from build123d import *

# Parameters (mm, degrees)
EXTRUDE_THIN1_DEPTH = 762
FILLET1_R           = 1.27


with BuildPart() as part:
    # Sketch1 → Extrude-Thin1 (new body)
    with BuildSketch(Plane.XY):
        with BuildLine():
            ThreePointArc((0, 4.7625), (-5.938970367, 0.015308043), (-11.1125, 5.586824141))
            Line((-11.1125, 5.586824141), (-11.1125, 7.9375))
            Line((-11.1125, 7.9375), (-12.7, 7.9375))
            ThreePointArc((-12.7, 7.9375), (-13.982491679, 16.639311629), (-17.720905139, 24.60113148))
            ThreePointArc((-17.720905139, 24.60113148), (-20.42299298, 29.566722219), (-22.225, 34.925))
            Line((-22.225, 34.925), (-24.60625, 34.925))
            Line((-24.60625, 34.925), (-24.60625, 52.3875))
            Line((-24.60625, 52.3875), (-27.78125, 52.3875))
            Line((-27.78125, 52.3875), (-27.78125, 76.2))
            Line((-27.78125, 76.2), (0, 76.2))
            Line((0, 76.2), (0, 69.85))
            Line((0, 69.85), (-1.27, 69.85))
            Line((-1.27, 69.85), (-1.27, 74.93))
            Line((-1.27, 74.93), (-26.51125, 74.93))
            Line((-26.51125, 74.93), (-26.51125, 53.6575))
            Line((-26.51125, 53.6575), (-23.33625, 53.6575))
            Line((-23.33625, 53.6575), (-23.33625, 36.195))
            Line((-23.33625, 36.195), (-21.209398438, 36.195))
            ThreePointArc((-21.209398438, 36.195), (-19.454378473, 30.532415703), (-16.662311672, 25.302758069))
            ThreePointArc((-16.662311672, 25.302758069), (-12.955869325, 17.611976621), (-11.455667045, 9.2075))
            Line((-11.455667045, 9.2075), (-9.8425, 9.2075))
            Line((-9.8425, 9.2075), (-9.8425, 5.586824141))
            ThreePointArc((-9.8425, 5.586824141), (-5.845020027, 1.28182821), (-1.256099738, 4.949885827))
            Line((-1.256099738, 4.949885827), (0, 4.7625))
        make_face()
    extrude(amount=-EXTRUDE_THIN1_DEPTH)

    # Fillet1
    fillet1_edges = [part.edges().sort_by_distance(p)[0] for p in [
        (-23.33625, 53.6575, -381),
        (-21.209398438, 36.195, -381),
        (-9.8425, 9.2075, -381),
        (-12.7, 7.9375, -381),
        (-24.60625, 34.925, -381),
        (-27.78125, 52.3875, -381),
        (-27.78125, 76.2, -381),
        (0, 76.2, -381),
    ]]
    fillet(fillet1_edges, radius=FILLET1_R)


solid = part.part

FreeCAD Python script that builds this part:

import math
import FreeCAD as App
import Part
import Sketcher
from FreeCAD import Vector
Q = App.Units.Quantity


def edges_at(feature, points):
    """Names of the edges that pass closest to the given points."""
    edges = feature.Shape.Edges
    near = lambda p: min(range(len(edges)), key=lambda i: edges[i].distToShape(Part.Vertex(*p))[0])
    return sorted({f"Edge{near(p) + 1}" for p in points})

doc = App.newDocument("Part")
body = doc.addObject("PartDesign::Body", "Body")

# Sketch on XY plane
sketch1 = body.newObject("Sketcher::SketchObject", "Sketch")
sketch1.AttachmentSupport = (doc.getObject("XY_Plane"), [""])
sketch1.MapMode = "FlatFace"
sketch1.addGeometry(Part.ArcOfCircle(Part.Circle(Vector(-5.5, 5.6, 0), Vector(0, 0, 1), 5.6), math.radians(180), math.radians(352)), False)
sketch1.addGeometry(Part.LineSegment(Vector(0, 4.8, 0), Vector(-1.3, 4.9, 0)), False)
sketch1.addGeometry(Part.ArcOfCircle(Part.Circle(Vector(-5.5, 5.6, 0), Vector(0, 0, 1), 4.3), math.radians(180), math.radians(352)), False)
sketch1.addGeometry(Part.LineSegment(Vector(-9.8, 5.6, 0), Vector(-9.8, 9.2, 0)), False)
sketch1.addGeometry(Part.LineSegment(Vector(-9.8, 9.2, 0), Vector(-11.5, 9.2, 0)), False)
sketch1.addGeometry(Part.ArcOfCircle(Part.Circle(Vector(-42.9, 7.9, 0), Vector(0, 0, 1), 31.4), math.radians(2), math.radians(34)), False)
sketch1.addGeometry(Part.ArcOfCircle(Part.Circle(Vector(9.4, 42.6, 0), Vector(0, 0, 1), 31.3), math.radians(-168), math.radians(-146)), False)
sketch1.addGeometry(Part.LineSegment(Vector(-21.2, 36.2, 0), Vector(-23.3, 36.2, 0)), False)
sketch1.addGeometry(Part.LineSegment(Vector(-23.3, 36.2, 0), Vector(-23.3, 53.7, 0)), False)
sketch1.addGeometry(Part.LineSegment(Vector(-23.3, 53.7, 0), Vector(-26.5, 53.7, 0)), False)
sketch1.addGeometry(Part.LineSegment(Vector(-26.5, 53.7, 0), Vector(-26.5, 74.9, 0)), False)
sketch1.addGeometry(Part.LineSegment(Vector(-26.5, 74.9, 0), Vector(-1.3, 74.9, 0)), False)
sketch1.addGeometry(Part.LineSegment(Vector(-1.3, 74.9, 0), Vector(-1.3, 69.8, 0)), False)
sketch1.addGeometry(Part.LineSegment(Vector(-1.3, 69.8, 0), Vector(0, 69.8, 0)), False)
sketch1.addGeometry(Part.LineSegment(Vector(0, 69.8, 0), Vector(0, 76.2, 0)), False)
sketch1.addGeometry(Part.LineSegment(Vector(0, 76.2, 0), Vector(-27.8, 76.2, 0)), False)
sketch1.addGeometry(Part.LineSegment(Vector(-27.8, 76.2, 0), Vector(-27.8, 52.4, 0)), False)
sketch1.addGeometry(Part.LineSegment(Vector(-27.8, 52.4, 0), Vector(-24.6, 52.4, 0)), False)
sketch1.addGeometry(Part.LineSegment(Vector(-24.6, 52.4, 0), Vector(-24.6, 34.9, 0)), False)
sketch1.addGeometry(Part.LineSegment(Vector(-24.6, 34.9, 0), Vector(-22.2, 34.9, 0)), False)
sketch1.addGeometry(Part.ArcOfCircle(Part.Circle(Vector(9.4, 42.6, 0), Vector(0, 0, 1), 32.5), math.radians(-166.39), math.radians(-146.46)), False)
sketch1.addGeometry(Part.ArcOfCircle(Part.Circle(Vector(-42.9, 7.9, 0), Vector(0, 0, 1), 30.2), math.radians(0), math.radians(34)), False)
sketch1.addGeometry(Part.LineSegment(Vector(-12.7, 7.9, 0), Vector(-11.1, 7.9, 0)), False)
sketch1.addGeometry(Part.LineSegment(Vector(-11.1, 7.9, 0), Vector(-11.1, 5.6, 0)), False)
sketch1.addConstraint(Sketcher.Constraint("Coincident", 0, 2, 1, 1))
sketch1.addConstraint(Sketcher.Constraint("Coincident", 1, 2, 2, 2))
sketch1.addConstraint(Sketcher.Constraint("Tangent", 2, 1, 3, 1))
sketch1.addConstraint(Sketcher.Constraint("Coincident", 3, 2, 4, 1))
sketch1.addConstraint(Sketcher.Constraint("Coincident", 4, 2, 5, 1))
sketch1.addConstraint(Sketcher.Constraint("Tangent", 5, 2, 6, 2))
sketch1.addConstraint(Sketcher.Constraint("Coincident", 6, 1, 7, 1))
sketch1.addConstraint(Sketcher.Constraint("Coincident", 7, 2, 8, 1))
sketch1.addConstraint(Sketcher.Constraint("Coincident", 8, 2, 9, 1))
sketch1.addConstraint(Sketcher.Constraint("Coincident", 9, 2, 10, 1))
sketch1.addConstraint(Sketcher.Constraint("Coincident", 10, 2, 11, 1))
sketch1.addConstraint(Sketcher.Constraint("Coincident", 11, 2, 12, 1))
sketch1.addConstraint(Sketcher.Constraint("Coincident", 12, 2, 13, 1))
sketch1.addConstraint(Sketcher.Constraint("Coincident", 13, 2, 14, 1))
sketch1.addConstraint(Sketcher.Constraint("Coincident", 14, 2, 15, 1))
sketch1.addConstraint(Sketcher.Constraint("Coincident", 15, 2, 16, 1))
sketch1.addConstraint(Sketcher.Constraint("Coincident", 16, 2, 17, 1))
sketch1.addConstraint(Sketcher.Constraint("Coincident", 17, 2, 18, 1))
sketch1.addConstraint(Sketcher.Constraint("Coincident", 18, 2, 19, 1))
sketch1.addConstraint(Sketcher.Constraint("Coincident", 19, 2, 20, 1))
sketch1.addConstraint(Sketcher.Constraint("Tangent", 20, 2, 21, 2))
sketch1.addConstraint(Sketcher.Constraint("Coincident", 21, 1, 22, 1))
sketch1.addConstraint(Sketcher.Constraint("Coincident", 22, 2, 23, 1))
sketch1.addConstraint(Sketcher.Constraint("Tangent", 23, 2, 0, 1))
sketch1.addConstraint(Sketcher.Constraint("Vertical", 3))
sketch1.addConstraint(Sketcher.Constraint("Horizontal", 4))
sketch1.addConstraint(Sketcher.Constraint("Horizontal", 7))
sketch1.addConstraint(Sketcher.Constraint("Vertical", 8))
sketch1.addConstraint(Sketcher.Constraint("Horizontal", 9))
sketch1.addConstraint(Sketcher.Constraint("Vertical", 10))
sketch1.addConstraint(Sketcher.Constraint("Horizontal", 11))
sketch1.addConstraint(Sketcher.Constraint("Vertical", 12))
sketch1.addConstraint(Sketcher.Constraint("Horizontal", 13))
sketch1.addConstraint(Sketcher.Constraint("Vertical", 14))
sketch1.addConstraint(Sketcher.Constraint("Horizontal", 15))
sketch1.addConstraint(Sketcher.Constraint("Vertical", 16))
sketch1.addConstraint(Sketcher.Constraint("Horizontal", 17))
sketch1.addConstraint(Sketcher.Constraint("Vertical", 18))
sketch1.addConstraint(Sketcher.Constraint("Horizontal", 19))
sketch1.addConstraint(Sketcher.Constraint("Horizontal", 22))
sketch1.addConstraint(Sketcher.Constraint("Vertical", 23))
sketch1.addConstraint(Sketcher.Constraint("Coincident", 2, 3, 0, 3))
sketch1.addConstraint(Sketcher.Constraint("Coincident", 20, 3, 6, 3))
sketch1.addConstraint(Sketcher.Constraint("Coincident", 21, 3, 5, 3))
sketch1.addConstraint(Sketcher.Constraint("PointOnObject", 0, 2, -2))
sketch1.addConstraint(Sketcher.Constraint("PointOnObject", 13, 2, -2))
sketch1.addConstraint(Sketcher.Constraint("Horizontal", 5, 3, 21, 1))
sketch1.addConstraint(Sketcher.Constraint("Equal", 9, 17))
sketch1.addConstraint(Sketcher.Constraint("Equal", 8, 18))
sketch1.addConstraint(Sketcher.Constraint("DistanceY", 12, 2, 12, 1, Q("0.2 in")))
sketch1.addConstraint(Sketcher.Constraint("DistanceY", -1, 1, 14, 2, Q("3 in")))
sketch1.addConstraint(Sketcher.Constraint("Radius", 20, Q("1.28125 in")))
sketch1.addConstraint(Sketcher.Constraint("Radius", 21, Q("1.1875 in")))
sketch1.addConstraint(Sketcher.Constraint("DistanceX", 13, 1, 13, 2, Q("0.05 in")))
sketch1.addConstraint(Sketcher.Constraint("DistanceY", 14, 1, 14, 2, Q("0.25 in")))
sketch1.addConstraint(Sketcher.Constraint("DistanceX", 21, 1, -1, 1, Q("0.5 in")))
sketch1.addConstraint(Sketcher.Constraint("Radius", 5, Q("1.2375 in")))
sketch1.addConstraint(Sketcher.Constraint("DistanceX", 21, 3, 2, 1, Q("1.3 in")))
sketch1.addConstraint(Sketcher.Constraint("Distance", 1, Q("0.05 in")))
sketch1.addConstraint(Sketcher.Constraint("DistanceX", 9, 2, 9, 1, Q("0.125 in")))
sketch1.addConstraint(Sketcher.Constraint("DistanceX", 15, 2, 15, 1, Q("1.09375 in")))
sketch1.addConstraint(Sketcher.Constraint("DistanceX", 19, 1, 19, 2, Q("0.09375 in")))
sketch1.addConstraint(Sketcher.Constraint("DistanceY", 8, 1, 8, 2, Q("0.6875 in")))
sketch1.addConstraint(Sketcher.Constraint("DistanceY", 16, 2, 16, 1, Q("0.9375 in")))
sketch1.addConstraint(Sketcher.Constraint("DistanceX", 15, 2, 10, 2, Q("0.05 in")))
sketch1.addConstraint(Sketcher.Constraint("DistanceY", 16, 2, 9, 2, Q("0.05 in")))
sketch1.addConstraint(Sketcher.Constraint("DistanceY", 21, 1, 4, 2, Q("0.05 in")))
sketch1.addConstraint(Sketcher.Constraint("DistanceY", -1, 1, 5, 3, Q("0.3125 in")))
sketch1.addConstraint(Sketcher.Constraint("DistanceY", -1, 1, 0, 2, Q("0.1875 in")))
sketch1.addConstraint(Sketcher.Constraint("Radius", 0, 5.586824))
sketch1.addConstraint(Sketcher.Constraint("DistanceX", 1, 2, -1, 1, 1.2561))
pad1 = body.newObject("PartDesign::Pad", "Pad")
pad1.Profile = sketch1
pad1.Length = Q("30 in")
pad1.Reversed = True
doc.recompute()

fillet = body.newObject("PartDesign::Fillet", "Fillet")
fillet.Base = (pad1, edges_at(pad1, [
    (-23.336, 53.657, -381),
    (-21.209, 36.195, -381),
    (-9.842, 9.207, -381),
    (-12.7, 7.938, -381),
    (-24.606, 34.925, -381),
    (-27.781, 52.388, -381),
    (-27.781, 76.2, -381),
    (0, 76.2, -381),
]))
fillet.Radius = Q("0.05 in")

doc.recompute()
